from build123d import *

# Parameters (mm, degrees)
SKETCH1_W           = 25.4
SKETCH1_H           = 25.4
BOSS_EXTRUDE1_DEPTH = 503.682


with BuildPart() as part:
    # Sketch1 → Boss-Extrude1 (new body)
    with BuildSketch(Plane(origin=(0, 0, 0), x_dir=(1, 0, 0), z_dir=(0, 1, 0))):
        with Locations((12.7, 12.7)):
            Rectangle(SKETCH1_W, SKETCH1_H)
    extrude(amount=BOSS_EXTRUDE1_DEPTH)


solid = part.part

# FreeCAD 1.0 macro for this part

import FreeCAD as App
import Part
import Sketcher
from FreeCAD import Vector
Q = App.Units.Quantity


def add_polygon(sketch, points):
    """Adds a closed chain of lines whose ends are joined by coincident constraints."""
    first, n = sketch.GeometryCount, len(points)
    for a, b in zip(points, points[1:] + points[:1]):
        sketch.addGeometry(Part.LineSegment(App.Vector(*a, 0), App.Vector(*b, 0)), False)
    for i in range(n):
        sketch.addConstraint(Sketcher.Constraint("Coincident", first + i, 2, first + (i + 1) % n, 1))

doc = App.newDocument("Part")
body = doc.addObject("PartDesign::Body", "Body")

sketch1 = doc.addObject("Sketcher::SketchObject", "Sketch")
body.addObject(sketch1)
sketch1.AttachmentSupport = (doc.XZ_Plane, [""])
sketch1.MapMode = "FlatFace"
add_polygon(sketch1, [(0, -25.4), (0, 0), (25.4, 0), (25.4, -25.4)])
sketch1.addConstraint([
    Sketcher.Constraint("Vertical", 0),
    Sketcher.Constraint("Horizontal", 1),
    Sketcher.Constraint("Vertical", 2),
    Sketcher.Constraint("Horizontal", 3),
    Sketcher.Constraint("Coincident", 0, 2, -1, 1),
    Sketcher.Constraint("Equal", 3, 0),
    Sketcher.Constraint("DistanceX", 1, 1, 1, 2, Q("1 in")),
])
pad1 = doc.addObject("PartDesign::Pad", "Pad")
body.addObject(pad1)
pad1.Profile = sketch1
pad1.Length = Q("19.83 in")
pad1.Reversed = True

doc.recompute()
